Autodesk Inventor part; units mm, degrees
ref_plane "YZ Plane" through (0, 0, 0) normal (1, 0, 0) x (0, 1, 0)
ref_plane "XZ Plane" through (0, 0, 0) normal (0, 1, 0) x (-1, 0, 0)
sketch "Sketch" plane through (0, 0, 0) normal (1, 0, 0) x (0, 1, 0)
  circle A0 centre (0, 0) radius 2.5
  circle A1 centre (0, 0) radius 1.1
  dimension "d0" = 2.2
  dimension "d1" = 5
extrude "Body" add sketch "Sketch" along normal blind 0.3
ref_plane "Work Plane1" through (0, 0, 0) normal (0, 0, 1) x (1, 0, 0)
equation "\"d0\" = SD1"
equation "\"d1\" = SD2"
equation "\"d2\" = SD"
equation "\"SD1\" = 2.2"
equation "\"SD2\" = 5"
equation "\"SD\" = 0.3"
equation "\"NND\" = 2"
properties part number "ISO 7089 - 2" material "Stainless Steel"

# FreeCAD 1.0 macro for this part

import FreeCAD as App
import Part
import Sketcher
Q = App.Units.Quantity

doc = App.newDocument("Part")
body = doc.addObject("PartDesign::Body", "Body")

sketch1 = body.newObject("Sketcher::SketchObject", "Sketch")
sketch1.AttachmentSupport = (doc.getObject("YZ_Plane"), [""])
sketch1.MapMode = "FlatFace"
sketch1.addGeometry(Part.Circle(App.Vector(0, 0, 0), App.Vector(0, 0, 1), 2.5), False)
sketch1.addGeometry(Part.Circle(App.Vector(0, 0, 0), App.Vector(0, 0, 1), 1.1), False)
sketch1.addConstraint(Sketcher.Constraint("Coincident", 0, 3, -1, 1))
sketch1.addConstraint(Sketcher.Constraint("Coincident", 1, 3, -1, 1))
sketch1.addConstraint(Sketcher.Constraint("Diameter", 0, Q("5 mm")))
sketch1.addConstraint(Sketcher.Constraint("Diameter", 1, Q("2.2 mm")))
pad1 = body.newObject("PartDesign::Pad", "Pad")
pad1.Profile = sketch1
pad1.Length = 0.3

doc.recompute()
